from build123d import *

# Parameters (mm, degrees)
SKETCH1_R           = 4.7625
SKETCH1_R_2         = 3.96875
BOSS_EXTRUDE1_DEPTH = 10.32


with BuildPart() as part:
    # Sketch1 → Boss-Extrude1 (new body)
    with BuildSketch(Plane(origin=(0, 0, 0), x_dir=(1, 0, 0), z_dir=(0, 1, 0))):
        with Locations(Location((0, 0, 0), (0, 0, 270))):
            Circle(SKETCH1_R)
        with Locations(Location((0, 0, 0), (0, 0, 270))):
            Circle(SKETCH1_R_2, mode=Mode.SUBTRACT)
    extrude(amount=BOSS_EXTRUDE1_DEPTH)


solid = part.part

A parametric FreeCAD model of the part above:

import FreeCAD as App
import Part
import Sketcher

V = App.Vector
Q = App.Units.Quantity

doc = App.newDocument("Part")
body = doc.addObject("PartDesign::Body", "Body")

sketch1 = body.newObject("Sketcher::SketchObject", "Sketch")
sketch1.AttachmentSupport = (doc.getObject("XZ_Plane"), [""])
sketch1.MapMode = "FlatFace"
sketch1.addGeometry([
    Part.Circle(V(0, 0, 0), V(0, 0, 1), 4.8),
    Part.Circle(V(0, 0, 0), V(0, 0, 1), 4),
], False)
sketch1.addConstraint([
    Sketcher.Constraint("Coincident", 0, 3, -1, 1),
    Sketcher.Constraint("Coincident", 1, 3, -1, 1),
    Sketcher.Constraint("Diameter", 0, Q("0.375 in")),
    Sketcher.Constraint("Diameter", 1, Q("0.3125 in")),
])
pad1 = body.newObject("PartDesign::Pad", "Pad")
pad1.Profile = sketch1
pad1.Length = 10.32
pad1.Reversed = True

doc.recompute()
